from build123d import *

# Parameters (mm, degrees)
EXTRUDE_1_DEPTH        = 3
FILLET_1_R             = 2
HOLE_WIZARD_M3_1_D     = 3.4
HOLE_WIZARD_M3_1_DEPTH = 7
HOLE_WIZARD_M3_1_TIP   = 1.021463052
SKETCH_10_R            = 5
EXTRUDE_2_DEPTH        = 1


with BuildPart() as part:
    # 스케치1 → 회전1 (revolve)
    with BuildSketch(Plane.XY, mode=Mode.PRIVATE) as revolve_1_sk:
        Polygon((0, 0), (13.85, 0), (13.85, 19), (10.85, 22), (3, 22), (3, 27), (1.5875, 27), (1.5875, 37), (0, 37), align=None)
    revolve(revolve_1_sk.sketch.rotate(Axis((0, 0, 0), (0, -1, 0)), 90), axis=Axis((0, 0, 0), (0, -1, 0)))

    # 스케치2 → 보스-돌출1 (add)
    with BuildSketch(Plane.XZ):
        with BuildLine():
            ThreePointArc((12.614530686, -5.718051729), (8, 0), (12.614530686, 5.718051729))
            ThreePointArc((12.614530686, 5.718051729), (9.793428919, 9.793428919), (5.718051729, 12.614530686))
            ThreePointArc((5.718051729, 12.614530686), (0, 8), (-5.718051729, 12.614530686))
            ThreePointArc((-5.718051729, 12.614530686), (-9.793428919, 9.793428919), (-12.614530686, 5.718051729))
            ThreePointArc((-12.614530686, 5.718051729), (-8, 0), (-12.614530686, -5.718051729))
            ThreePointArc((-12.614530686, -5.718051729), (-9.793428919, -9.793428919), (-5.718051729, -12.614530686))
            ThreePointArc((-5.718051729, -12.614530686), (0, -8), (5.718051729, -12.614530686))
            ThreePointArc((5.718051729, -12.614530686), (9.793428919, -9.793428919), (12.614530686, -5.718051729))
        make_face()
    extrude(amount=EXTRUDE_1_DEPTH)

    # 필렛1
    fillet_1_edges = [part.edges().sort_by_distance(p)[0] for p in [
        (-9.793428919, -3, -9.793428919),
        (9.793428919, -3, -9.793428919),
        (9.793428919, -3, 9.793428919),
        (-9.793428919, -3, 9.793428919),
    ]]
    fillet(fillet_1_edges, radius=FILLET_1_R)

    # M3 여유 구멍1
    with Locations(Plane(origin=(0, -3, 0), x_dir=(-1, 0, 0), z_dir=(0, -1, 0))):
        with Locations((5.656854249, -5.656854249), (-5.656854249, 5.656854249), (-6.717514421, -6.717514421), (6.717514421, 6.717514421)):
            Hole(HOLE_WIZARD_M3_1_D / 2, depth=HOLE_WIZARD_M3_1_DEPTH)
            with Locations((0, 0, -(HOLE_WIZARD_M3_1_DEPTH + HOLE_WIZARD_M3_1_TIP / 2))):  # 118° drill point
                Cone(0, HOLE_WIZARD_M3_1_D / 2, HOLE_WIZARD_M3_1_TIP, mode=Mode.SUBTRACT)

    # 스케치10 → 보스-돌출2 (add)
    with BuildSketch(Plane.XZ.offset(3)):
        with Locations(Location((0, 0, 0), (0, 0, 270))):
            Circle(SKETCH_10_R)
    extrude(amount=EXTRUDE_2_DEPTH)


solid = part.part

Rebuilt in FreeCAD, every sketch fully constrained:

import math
import FreeCAD as App
import Part
import Sketcher
from FreeCAD import Vector
Q = App.Units.Quantity


def edges_at(feature, points):
    """Names of the edges that pass closest to the given points."""
    edges = feature.Shape.Edges
    near = lambda p: min(range(len(edges)), key=lambda i: edges[i].distToShape(Part.Vertex(*p))[0])
    return sorted({f"Edge{near(p) + 1}" for p in points})

doc = App.newDocument("Part")
body = doc.addObject("PartDesign::Body", "Body")

sketch1 = doc.addObject("Sketcher::SketchObject", "Sketch")
body.addObject(sketch1)
sketch1.AttachmentSupport = (doc.XY_Plane, [""])
sketch1.MapMode = "FlatFace"
sketch1.addGeometry([
    Part.LineSegment(Vector(0, 0, 0), Vector(13.8, 0, 0)),
    Part.LineSegment(Vector(13.8, 0, 0), Vector(13.8, 19, 0)),
    Part.LineSegment(Vector(13.8, 19, 0), Vector(10.8, 22, 0)),
    Part.LineSegment(Vector(10.8, 22, 0), Vector(3, 22, 0)),
    Part.LineSegment(Vector(3, 22, 0), Vector(3, 27, 0)),
    Part.LineSegment(Vector(3, 27, 0), Vector(1.6, 27, 0)),
    Part.LineSegment(Vector(1.6, 27, 0), Vector(1.6, 37, 0)),
    Part.LineSegment(Vector(1.6, 37, 0), Vector(0, 37, 0)),
    Part.LineSegment(Vector(0, 37, 0), Vector(0, 0, 0)),
], False)
sketch1.addConstraint([
    Sketcher.Constraint("Coincident", 0, 2, 1, 1),
    Sketcher.Constraint("Coincident", 1, 2, 2, 1),
    Sketcher.Constraint("Coincident", 2, 2, 3, 1),
    Sketcher.Constraint("Coincident", 3, 2, 4, 1),
    Sketcher.Constraint("Coincident", 4, 2, 5, 1),
    Sketcher.Constraint("Coincident", 5, 2, 6, 1),
    Sketcher.Constraint("Coincident", 6, 2, 7, 1),
    Sketcher.Constraint("Coincident", 7, 2, 8, 1),
    Sketcher.Constraint("Coincident", 8, 2, 0, 1),
    Sketcher.Constraint("Horizontal", 0),
    Sketcher.Constraint("Vertical", 1),
    Sketcher.Constraint("Horizontal", 3),
    Sketcher.Constraint("Vertical", 4),
    Sketcher.Constraint("Horizontal", 5),
    Sketcher.Constraint("Vertical", 6),
    Sketcher.Constraint("Horizontal", 7),
    Sketcher.Constraint("Vertical", 8),
    Sketcher.Constraint("Coincident", 8, 2, -1, 1),
    Sketcher.Constraint("DistanceY", 1, 1, 1, 2, Q("19 mm")),
    Sketcher.Constraint("DistanceY", 4, 1, 4, 2, Q("5 mm")),
    Sketcher.Constraint("DistanceY", 6, 1, 6, 2, Q("10 mm")),
    Sketcher.Constraint("DistanceY", 8, 2, 8, 1, Q("37 mm")),
    Sketcher.Constraint("Angle", 2, Q("135 deg")),
    Sketcher.Constraint("DistanceX", -1, 1, 3, 2, Q("3 mm")),
    Sketcher.Constraint("DistanceX", 0, 1, 0, 2, Q("13.85 mm")),
    Sketcher.Constraint("DistanceX", 5, 2, 5, 1, Q("1.4125 mm")),
])
revolution = doc.addObject("PartDesign::Revolution", "Revolution")
body.addObject(revolution)
revolution.Profile = sketch1
revolution.ReferenceAxis = (sketch1, ["V_Axis"])
revolution.Angle = 360

sketch2 = doc.addObject("Sketcher::SketchObject", "Sketch001")
body.addObject(sketch2)
sketch2.AttachmentSupport = (doc.XZ_Plane, [""])
sketch2.MapMode = "FlatFace"
sketch2.addGeometry([
    Part.ArcOfCircle(Part.Circle(Vector(14, 0, 0), Vector(0, 0, 1), 6), math.radians(102), math.radians(258)),
    Part.ArcOfCircle(Part.Circle(Vector(0, 0, 0), Vector(0, 0, 1), 14), math.radians(24), math.radians(66)),
    Part.ArcOfCircle(Part.Circle(Vector(0, 14, 0), Vector(0, 0, 1), 6), math.radians(-168), math.radians(-12)),
    Part.ArcOfCircle(Part.Circle(Vector(0, 0, 0), Vector(0, 0, 1), 14), math.radians(114), math.radians(156)),
    Part.ArcOfCircle(Part.Circle(Vector(-14, 0, 0), Vector(0, 0, 1), 6), math.radians(-78), math.radians(78)),
    Part.ArcOfCircle(Part.Circle(Vector(0, 0, 0), Vector(0, 0, 1), 14), math.radians(-156), math.radians(-114)),
    Part.ArcOfCircle(Part.Circle(Vector(0, -14, 0), Vector(0, 0, 1), 6), math.radians(12), math.radians(168)),
    Part.ArcOfCircle(Part.Circle(Vector(0, 0, 0), Vector(0, 0, 1), 14), math.radians(-66), math.radians(-24)),
], False)
sketch2.addConstraint([
    Sketcher.Constraint("Coincident", 0, 1, 1, 1),
    Sketcher.Constraint("Coincident", 1, 2, 2, 2),
    Sketcher.Constraint("Coincident", 2, 1, 3, 1),
    Sketcher.Constraint("Coincident", 3, 2, 4, 2),
    Sketcher.Constraint("Coincident", 4, 1, 5, 1),
    Sketcher.Constraint("Coincident", 5, 2, 6, 2),
    Sketcher.Constraint("Coincident", 6, 1, 7, 1),
    Sketcher.Constraint("Coincident", 7, 2, 0, 2),
    Sketcher.Constraint("Coincident", 1, 3, -1, 1),
    Sketcher.Constraint("Coincident", 3, 3, -1, 1),
    Sketcher.Constraint("Coincident", 5, 3, -1, 1),
    Sketcher.Constraint("Coincident", 7, 3, -1, 1),
    Sketcher.Constraint("Equal", 0, 2),
    Sketcher.Constraint("Equal", 1, 3),
    Sketcher.Constraint("Equal", 2, 4),
    Sketcher.Constraint("Equal", 3, 5),
    Sketcher.Constraint("Equal", 4, 6),
    Sketcher.Constraint("Equal", 5, 7),
    Sketcher.Constraint("Symmetric", 0, 3, 4, 3, -1, 1),
    Sketcher.Constraint("Symmetric", 2, 3, 6, 3, -1, 1),
    Sketcher.Constraint("PointOnObject", 0, 3, -1),
    Sketcher.Constraint("PointOnObject", 2, 3, -2),
    Sketcher.Constraint("Radius", 0, Q("5.85 mm")),
    Sketcher.Constraint("Radius", 1, Q("13.85 mm")),
    Sketcher.Constraint("DistanceX", 4, 3, 0, 3, Q("27.7 mm")),
    Sketcher.Constraint("DistanceY", -1, 1, 2, 3, Q("13.85 mm")),
])
pad1 = doc.addObject("PartDesign::Pad", "Pad")
body.addObject(pad1)
pad1.Profile = sketch2
pad1.Length = 3
doc.recompute()

fillet = doc.addObject("PartDesign::Fillet", "Fillet")
body.addObject(fillet)
fillet.Base = (pad1, edges_at(pad1, [
    (-9.793, -3, -9.793),
    (9.793, -3, -9.793),
    (9.793, -3, 9.793),
    (-9.793, -3, 9.793),
]))
fillet.Radius = 2

sketch3 = doc.addObject("Sketcher::SketchObject", "Sketch002")
body.addObject(sketch3)
sketch3.AttachmentSupport = (doc.XZ_Plane, [""])
sketch3.MapMode = "FlatFace"
sketch3.AttachmentOffset = App.Placement(Vector(0, 0, 3), App.Rotation())
sketch3.addGeometry([
    Part.Circle(Vector(-5.7, 5.7, 0), Vector(0, 0, 1), 1.7),
    Part.Circle(Vector(5.7, -5.7, 0), Vector(0, 0, 1), 1.7),
    Part.Circle(Vector(6.7, 6.7, 0), Vector(0, 0, 1), 1.7),
    Part.Circle(Vector(-6.7, -6.7, 0), Vector(0, 0, 1), 1.7),
], False)
sketch3.addConstraint([
    Sketcher.Constraint("Equal", 0, 1),
    Sketcher.Constraint("Equal", 1, 2),
    Sketcher.Constraint("Equal", 2, 3),
    Sketcher.Constraint("Symmetric", 0, 3, 1, 3, -1, 1),
    Sketcher.Constraint("Symmetric", 2, 3, 3, 3, -1, 1),
    Sketcher.Constraint("Diameter", 0, Q("3.4 mm")),
    Sketcher.Constraint("DistanceX", 0, 3, 1, 3, Q("11.313708 mm")),
    Sketcher.Constraint("DistanceY", 1, 3, 0, 3, Q("11.313708 mm")),
    Sketcher.Constraint("DistanceX", 0, 3, 2, 3, Q("12.374369 mm")),
    Sketcher.Constraint("DistanceY", 0, 3, 2, 3, Q("1.06066 mm")),
])
doc.recompute()
hole = doc.addObject("PartDesign::Hole", "Hole")
body.addObject(hole)
hole.Profile = sketch3
hole.ThreadType = "None"
hole.Diameter = 3.4
hole.DepthType = "Dimension"
hole.Depth = 7
hole.DrillPoint = "Angled"
hole.DrillPointAngle = 118

sketch4 = doc.addObject("Sketcher::SketchObject", "Sketch003")
body.addObject(sketch4)
sketch4.AttachmentSupport = (doc.XZ_Plane, [""])
sketch4.MapMode = "FlatFace"
sketch4.AttachmentOffset = App.Placement(Vector(0, 0, 3), App.Rotation())
sketch4.addGeometry(Part.Circle(Vector(0, 0, 0), Vector(0, 0, 1), 5), False)
sketch4.addConstraint([
    Sketcher.Constraint("Coincident", 0, 3, -1, 1),
    Sketcher.Constraint("Diameter", 0, Q("10 mm")),
])
pad2 = doc.addObject("PartDesign::Pad", "Pad001")
body.addObject(pad2)
pad2.Profile = sketch4
pad2.Length = 1

doc.recompute()
